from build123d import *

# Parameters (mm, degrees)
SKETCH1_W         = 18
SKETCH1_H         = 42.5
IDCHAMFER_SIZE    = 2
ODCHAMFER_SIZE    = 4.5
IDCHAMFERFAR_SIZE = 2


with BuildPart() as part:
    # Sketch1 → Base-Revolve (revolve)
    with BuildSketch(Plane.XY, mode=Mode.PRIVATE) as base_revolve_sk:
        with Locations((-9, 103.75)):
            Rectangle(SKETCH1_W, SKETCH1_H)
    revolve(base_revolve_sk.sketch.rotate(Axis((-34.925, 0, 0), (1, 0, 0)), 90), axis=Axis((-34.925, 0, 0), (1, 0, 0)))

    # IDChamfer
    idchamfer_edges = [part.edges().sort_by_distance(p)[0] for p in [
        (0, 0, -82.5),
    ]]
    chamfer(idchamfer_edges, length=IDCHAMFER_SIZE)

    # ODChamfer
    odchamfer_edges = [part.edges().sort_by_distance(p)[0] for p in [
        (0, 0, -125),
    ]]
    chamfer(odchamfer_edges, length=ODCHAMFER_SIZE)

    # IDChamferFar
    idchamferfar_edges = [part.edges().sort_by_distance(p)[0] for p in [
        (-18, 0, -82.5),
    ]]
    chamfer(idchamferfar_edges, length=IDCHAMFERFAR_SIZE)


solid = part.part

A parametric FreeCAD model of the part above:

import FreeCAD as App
import Part
import Sketcher


def edges_at(feature, points):
    """Names of the edges that pass closest to the given points."""
    edges = feature.Shape.Edges
    near = lambda p: min(range(len(edges)), key=lambda i: edges[i].distToShape(Part.Vertex(*p))[0])
    return sorted({f"Edge{near(p) + 1}" for p in points})

doc = App.newDocument("Part")
params = doc.addObject("Spreadsheet::Sheet", "Params")
for row, (alias, value) in enumerate([
    ("sketch1_width", "18 mm"),
    ("sketch1_height", "42.5 mm"),
    ("revolution_angle", "360 deg"),
    ("chamfer_size", "2 mm"),
    ("chamfer2_size", "4.5 mm"),
    ("chamfer3_size", "2 mm"),
], start=1):
    params.set(f"A{row}", alias)
    params.set(f"B{row}", "=" + value)
    params.setAlias(f"B{row}", alias)

body = doc.addObject("PartDesign::Body", "Body")

sketch1 = body.newObject("Sketcher::SketchObject", "Sketch")
sketch1.AttachmentSupport = (doc.getObject("XY_Plane"), [""])
sketch1.MapMode = "FlatFace"
sketch1.addGeometry([
    Part.LineSegment(App.Vector(-18, 125, 0), App.Vector(-18, 82, 0)),
    Part.LineSegment(App.Vector(-18, 82, 0), App.Vector(0, 82, 0)),
    Part.LineSegment(App.Vector(0, 82, 0), App.Vector(0, 125, 0)),
    Part.LineSegment(App.Vector(0, 125, 0), App.Vector(-18, 125, 0)),
], False)
sketch1.addConstraint([
    Sketcher.Constraint("Coincident", 0, 2, 1, 1),
    Sketcher.Constraint("Coincident", 1, 2, 2, 1),
    Sketcher.Constraint("Coincident", 2, 2, 3, 1),
    Sketcher.Constraint("Coincident", 3, 2, 0, 1),
    Sketcher.Constraint("Vertical", 0),
    Sketcher.Constraint("Horizontal", 1),
    Sketcher.Constraint("Vertical", 2),
    Sketcher.Constraint("Horizontal", 3),
    Sketcher.Constraint("PointOnObject", 1, 2, -2),
    Sketcher.Constraint("DistanceX", 1, 1, 1, 2, 18.0),
    Sketcher.Constraint("DistanceY", 0, 2, 0, 1, 42.5),
    Sketcher.Constraint("DistanceY", -1, 1, 2, 2, 125.0),
])
sketch1.setExpression("Constraints[9]", "Params.sketch1_width")
sketch1.setExpression("Constraints[10]", "Params.sketch1_height")
revolution = body.newObject("PartDesign::Revolution", "Revolution")
revolution.Profile = sketch1
revolution.ReferenceAxis = (sketch1, ["H_Axis"])
revolution.setExpression("Angle", "Params.revolution_angle")
doc.recompute()

chamfer = body.newObject("PartDesign::Chamfer", "Chamfer")
chamfer.Base = (revolution, edges_at(revolution, [(0, 0, -82.5)]))
chamfer.setExpression("Size", "Params.chamfer_size")
doc.recompute()

chamfer2 = body.newObject("PartDesign::Chamfer", "Chamfer001")
chamfer2.Base = (chamfer, edges_at(chamfer, [(0, 0, -125)]))
chamfer2.setExpression("Size", "Params.chamfer2_size")
doc.recompute()

chamfer3 = body.newObject("PartDesign::Chamfer", "Chamfer002")
chamfer3.Base = (chamfer2, edges_at(chamfer2, [(-18, 0, -82.5)]))
chamfer3.setExpression("Size", "Params.chamfer3_size")

doc.recompute()
